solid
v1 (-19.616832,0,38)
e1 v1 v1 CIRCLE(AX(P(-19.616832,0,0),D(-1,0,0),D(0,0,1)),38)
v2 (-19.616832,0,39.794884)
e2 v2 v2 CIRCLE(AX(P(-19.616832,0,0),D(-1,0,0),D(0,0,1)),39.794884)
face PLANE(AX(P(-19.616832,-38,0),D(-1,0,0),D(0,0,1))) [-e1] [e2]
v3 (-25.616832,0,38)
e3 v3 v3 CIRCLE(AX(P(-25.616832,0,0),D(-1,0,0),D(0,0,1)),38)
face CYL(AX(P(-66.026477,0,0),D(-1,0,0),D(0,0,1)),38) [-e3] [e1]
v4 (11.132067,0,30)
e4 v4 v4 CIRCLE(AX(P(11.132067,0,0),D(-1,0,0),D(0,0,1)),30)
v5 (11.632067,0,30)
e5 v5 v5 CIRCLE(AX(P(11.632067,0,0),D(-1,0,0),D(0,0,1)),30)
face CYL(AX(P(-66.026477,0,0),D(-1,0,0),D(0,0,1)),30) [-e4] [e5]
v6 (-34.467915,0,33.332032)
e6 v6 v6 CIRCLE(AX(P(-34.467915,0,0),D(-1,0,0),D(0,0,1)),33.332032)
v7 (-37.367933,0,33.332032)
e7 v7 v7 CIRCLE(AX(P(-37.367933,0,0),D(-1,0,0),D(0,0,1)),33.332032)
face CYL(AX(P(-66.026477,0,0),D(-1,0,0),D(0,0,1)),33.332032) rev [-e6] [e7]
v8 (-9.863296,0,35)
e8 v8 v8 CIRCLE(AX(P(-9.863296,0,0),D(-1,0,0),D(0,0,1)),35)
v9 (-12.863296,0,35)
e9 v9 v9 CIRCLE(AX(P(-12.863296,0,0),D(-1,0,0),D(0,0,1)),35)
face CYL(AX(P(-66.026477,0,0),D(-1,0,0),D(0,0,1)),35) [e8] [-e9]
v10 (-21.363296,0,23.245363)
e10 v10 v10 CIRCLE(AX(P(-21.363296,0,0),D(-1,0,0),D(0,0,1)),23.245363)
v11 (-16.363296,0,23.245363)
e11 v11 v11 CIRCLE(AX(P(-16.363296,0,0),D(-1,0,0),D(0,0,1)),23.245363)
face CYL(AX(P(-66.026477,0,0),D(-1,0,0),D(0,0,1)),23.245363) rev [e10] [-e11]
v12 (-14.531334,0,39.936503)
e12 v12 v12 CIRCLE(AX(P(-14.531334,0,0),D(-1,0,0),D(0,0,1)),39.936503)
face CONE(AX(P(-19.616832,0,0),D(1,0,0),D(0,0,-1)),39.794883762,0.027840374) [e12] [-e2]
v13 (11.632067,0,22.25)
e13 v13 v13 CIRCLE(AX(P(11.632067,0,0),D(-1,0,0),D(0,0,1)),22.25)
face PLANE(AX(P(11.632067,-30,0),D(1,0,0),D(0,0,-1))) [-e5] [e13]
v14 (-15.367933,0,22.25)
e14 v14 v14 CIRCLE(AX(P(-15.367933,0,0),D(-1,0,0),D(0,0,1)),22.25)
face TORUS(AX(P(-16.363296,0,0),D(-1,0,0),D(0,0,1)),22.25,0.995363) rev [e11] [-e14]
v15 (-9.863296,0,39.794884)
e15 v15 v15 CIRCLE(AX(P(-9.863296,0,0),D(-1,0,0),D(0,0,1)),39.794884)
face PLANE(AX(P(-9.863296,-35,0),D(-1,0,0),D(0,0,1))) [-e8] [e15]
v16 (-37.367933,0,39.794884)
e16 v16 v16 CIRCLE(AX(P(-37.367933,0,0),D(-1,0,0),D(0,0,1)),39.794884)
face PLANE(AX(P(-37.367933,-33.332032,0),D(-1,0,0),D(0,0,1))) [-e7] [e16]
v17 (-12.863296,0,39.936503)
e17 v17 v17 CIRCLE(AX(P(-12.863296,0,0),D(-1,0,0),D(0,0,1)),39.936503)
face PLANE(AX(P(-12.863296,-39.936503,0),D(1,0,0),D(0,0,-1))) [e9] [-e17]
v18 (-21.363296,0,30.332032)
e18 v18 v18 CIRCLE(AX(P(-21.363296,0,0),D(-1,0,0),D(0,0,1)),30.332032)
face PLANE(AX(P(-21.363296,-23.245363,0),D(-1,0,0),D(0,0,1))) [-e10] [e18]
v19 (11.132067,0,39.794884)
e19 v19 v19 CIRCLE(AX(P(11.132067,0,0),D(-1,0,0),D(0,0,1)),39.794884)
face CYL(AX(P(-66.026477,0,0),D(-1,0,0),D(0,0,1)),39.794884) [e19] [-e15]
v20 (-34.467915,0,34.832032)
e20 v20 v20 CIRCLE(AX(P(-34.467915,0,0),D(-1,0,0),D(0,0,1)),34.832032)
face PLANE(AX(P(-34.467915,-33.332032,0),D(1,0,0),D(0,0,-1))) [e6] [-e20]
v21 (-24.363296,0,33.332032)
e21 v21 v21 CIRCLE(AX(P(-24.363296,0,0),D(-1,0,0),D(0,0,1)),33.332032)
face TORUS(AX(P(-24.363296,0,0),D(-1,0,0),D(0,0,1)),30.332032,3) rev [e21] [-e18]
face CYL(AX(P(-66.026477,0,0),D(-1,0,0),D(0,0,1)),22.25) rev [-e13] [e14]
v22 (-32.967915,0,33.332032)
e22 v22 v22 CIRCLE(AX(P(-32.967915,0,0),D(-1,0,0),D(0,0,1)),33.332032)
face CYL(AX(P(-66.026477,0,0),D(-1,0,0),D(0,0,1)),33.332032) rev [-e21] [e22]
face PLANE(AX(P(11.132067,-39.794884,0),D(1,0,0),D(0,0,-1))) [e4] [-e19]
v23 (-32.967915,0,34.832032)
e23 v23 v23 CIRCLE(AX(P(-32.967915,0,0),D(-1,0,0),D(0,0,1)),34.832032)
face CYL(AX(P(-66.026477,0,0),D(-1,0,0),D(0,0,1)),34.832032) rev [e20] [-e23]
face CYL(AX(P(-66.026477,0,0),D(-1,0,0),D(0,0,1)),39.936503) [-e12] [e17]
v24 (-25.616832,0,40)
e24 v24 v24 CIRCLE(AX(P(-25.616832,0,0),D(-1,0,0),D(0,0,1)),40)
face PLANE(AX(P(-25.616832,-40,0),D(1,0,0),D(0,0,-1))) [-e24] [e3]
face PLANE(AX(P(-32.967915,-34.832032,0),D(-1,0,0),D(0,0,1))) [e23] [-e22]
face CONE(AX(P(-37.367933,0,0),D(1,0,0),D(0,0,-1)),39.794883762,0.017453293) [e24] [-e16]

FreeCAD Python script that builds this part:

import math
import FreeCAD as App
import Part
import Sketcher

doc = App.newDocument("Part")
body = doc.addObject("PartDesign::Body", "Body")

# Sketch on XY plane
sketch1 = body.newObject("Sketcher::SketchObject", "Sketch")
sketch1.AttachmentSupport = (doc.getObject("XY_Plane"), [""])
sketch1.MapMode = "FlatFace"
sketch1.addGeometry([
    Part.LineSegment(App.Vector(11.632067, -22.25, 0), App.Vector(-15.367933, -22.25, 0)),  # 0
    Part.ArcOfCircle(Part.Circle(App.Vector(-16.363296, -22.25, 0), App.Vector(0, 0, 1), 0.995363), math.radians(-90), math.radians(0)),  # 1
    Part.LineSegment(App.Vector(-16.363296, -23.245363, 0), App.Vector(-21.363296, -23.245363, 0)),  # 2
    Part.LineSegment(App.Vector(-21.363296, -23.245363, 0), App.Vector(-21.363296, -30.332032, 0)),  # 3
    Part.ArcOfCircle(Part.Circle(App.Vector(-24.363296, -30.332032, 0), App.Vector(0, 0, 1), 3), math.radians(-90), math.radians(0)),  # 4
    Part.LineSegment(App.Vector(-24.363296, -33.332032, 0), App.Vector(-32.967915, -33.332032, 0)),  # 5
    Part.LineSegment(App.Vector(-32.967915, -33.332032, 0), App.Vector(-32.967915, -34.832032, 0)),  # 6
    Part.LineSegment(App.Vector(-32.967915, -34.832032, 0), App.Vector(-34.467915, -34.832032, 0)),  # 7
    Part.LineSegment(App.Vector(-34.467915, -34.832032, 0), App.Vector(-34.467915, -33.332032, 0)),  # 8
    Part.LineSegment(App.Vector(-34.467915, -33.332032, 0), App.Vector(-37.367933, -33.332032, 0)),  # 9
    Part.LineSegment(App.Vector(-37.367933, -33.332032, 0), App.Vector(-37.367933, -39.794884, 0)),  # 10
    Part.LineSegment(App.Vector(-37.367933, -39.794884, 0), App.Vector(-25.616832, -40, 0)),  # 11
    Part.LineSegment(App.Vector(-25.616832, -40, 0), App.Vector(-25.616832, -38, 0)),  # 12
    Part.LineSegment(App.Vector(-25.616832, -38, 0), App.Vector(-19.616832, -38, 0)),  # 13
    Part.LineSegment(App.Vector(-19.616832, -38, 0), App.Vector(-19.616832, -39.794884, 0)),  # 14
    Part.LineSegment(App.Vector(-19.616832, -39.794884, 0), App.Vector(-14.531334, -39.936503, 0)),  # 15
    Part.LineSegment(App.Vector(-14.531334, -39.936503, 0), App.Vector(-12.863296, -39.936503, 0)),  # 16
    Part.LineSegment(App.Vector(-12.863296, -39.936503, 0), App.Vector(-12.863296, -35, 0)),  # 17
    Part.LineSegment(App.Vector(-12.863296, -35, 0), App.Vector(-9.863296, -35, 0)),  # 18
    Part.LineSegment(App.Vector(-9.863296, -35, 0), App.Vector(-9.863296, -39.794884, 0)),  # 19
    Part.LineSegment(App.Vector(-9.863296, -39.794884, 0), App.Vector(11.132067, -39.794884, 0)),  # 20
    Part.LineSegment(App.Vector(11.132067, -39.794884, 0), App.Vector(11.132067, -30, 0)),  # 21
    Part.LineSegment(App.Vector(11.132067, -30, 0), App.Vector(11.632067, -30, 0)),  # 22
    Part.LineSegment(App.Vector(11.632067, -30, 0), App.Vector(11.632067, -22.25, 0)),  # 23
], False)
sketch1.addConstraint([
    Sketcher.Constraint("Coincident", 0, 2, 1, 2),
    Sketcher.Constraint("Coincident", 1, 1, 2, 1),
    Sketcher.Constraint("Coincident", 2, 2, 3, 1),
    Sketcher.Constraint("Coincident", 3, 2, 4, 2),
    Sketcher.Constraint("Coincident", 4, 1, 5, 1),
    Sketcher.Constraint("Coincident", 5, 2, 6, 1),
    Sketcher.Constraint("Coincident", 6, 2, 7, 1),
    Sketcher.Constraint("Coincident", 7, 2, 8, 1),
    Sketcher.Constraint("Coincident", 8, 2, 9, 1),
    Sketcher.Constraint("Coincident", 9, 2, 10, 1),
    Sketcher.Constraint("Coincident", 10, 2, 11, 1),
    Sketcher.Constraint("Coincident", 11, 2, 12, 1),
    Sketcher.Constraint("Coincident", 12, 2, 13, 1),
    Sketcher.Constraint("Coincident", 13, 2, 14, 1),
    Sketcher.Constraint("Coincident", 14, 2, 15, 1),
    Sketcher.Constraint("Coincident", 15, 2, 16, 1),
    Sketcher.Constraint("Coincident", 16, 2, 17, 1),
    Sketcher.Constraint("Coincident", 17, 2, 18, 1),
    Sketcher.Constraint("Coincident", 18, 2, 19, 1),
    Sketcher.Constraint("Coincident", 19, 2, 20, 1),
    Sketcher.Constraint("Coincident", 20, 2, 21, 1),
    Sketcher.Constraint("Coincident", 21, 2, 22, 1),
    Sketcher.Constraint("Coincident", 22, 2, 23, 1),
    Sketcher.Constraint("Coincident", 23, 2, 0, 1),
    Sketcher.Constraint("Horizontal", 0),
    Sketcher.Constraint("Horizontal", 2),
    Sketcher.Constraint("Vertical", 3),
    Sketcher.Constraint("Horizontal", 5),
    Sketcher.Constraint("Vertical", 6),
    Sketcher.Constraint("Horizontal", 7),
    Sketcher.Constraint("Vertical", 8),
    Sketcher.Constraint("Horizontal", 9),
    Sketcher.Constraint("Vertical", 10),
    Sketcher.Constraint("Vertical", 12),
    Sketcher.Constraint("Horizontal", 13),
    Sketcher.Constraint("Vertical", 14),
    Sketcher.Constraint("Horizontal", 16),
    Sketcher.Constraint("Vertical", 17),
    Sketcher.Constraint("Horizontal", 18),
    Sketcher.Constraint("Vertical", 19),
    Sketcher.Constraint("Horizontal", 20),
    Sketcher.Constraint("Vertical", 21),
    Sketcher.Constraint("Horizontal", 22),
    Sketcher.Constraint("Vertical", 23),
    Sketcher.Constraint("Radius", 4, 3.0),
    Sketcher.Constraint("DistanceX", 0, 2, 0, 1, 27.0),
    Sketcher.Constraint("DistanceX", 2, 2, 2, 1, 5.0),
    Sketcher.Constraint("DistanceX", 13, 1, 13, 2, 6.0),
    Sketcher.Constraint("DistanceX", 18, 1, 18, 2, 3.0),
    Sketcher.Constraint("DistanceY", 12, 1, 12, 2, 2.0),
    Sketcher.Constraint("DistanceX", 7, 2, 7, 1, 1.5),
    Sketcher.Constraint("DistanceX", 22, 1, 22, 2, 0.5),
    Sketcher.Constraint("DistanceY", 6, 2, 6, 1, 1.5),
    Sketcher.Constraint("DistanceY", 8, 1, 8, 2, 1.5),
    Sketcher.Constraint("DistanceY", 11, 2, -1, 1, 40.0),
    Sketcher.Constraint("DistanceY", 17, 2, -1, 1, 35.0),
    Sketcher.Constraint("DistanceY", 21, 2, -1, 1, 30.0),
    Sketcher.Constraint("DistanceX", 4, 3, 1, 3, 8.0),
    Sketcher.Constraint("DistanceX", 4, 1, 3, 2, 3.0),
    Sketcher.Constraint("DistanceY", 4, 1, 3, 2, 3.0),
    Sketcher.Constraint("DistanceY", 23, 1, 23, 2, 7.75),
    Sketcher.Constraint("DistanceX", 3, 2, 16, 2, 8.5),
    Sketcher.Constraint("DistanceY", 1, 3, -1, 1, 22.25),
    Sketcher.Constraint("Radius", 1, 0.995363),
    Sketcher.Constraint("DistanceX", 5, 2, 5, 1, 8.60462),
    Sketcher.Constraint("DistanceX", 16, 1, 16, 2, 1.668038),
    Sketcher.Constraint("DistanceY", 3, 2, 3, 1, 7.08667),
    Sketcher.Constraint("DistanceY", 10, 2, 10, 1, 6.462851),
    Sketcher.Constraint("Distance", 11, 11.752891),
    Sketcher.Constraint("Distance", 15, 5.087469),
    Sketcher.Constraint("DistanceX", 9, 2, 9, 1, 2.900017),
    Sketcher.Constraint("DistanceY", 14, 2, 14, 1, 1.794884),
    Sketcher.Constraint("DistanceY", 19, 2, 19, 1, 4.794884),
    Sketcher.Constraint("DistanceX", 11, 2, -1, 1, 25.616832),
])
revolution = body.newObject("PartDesign::Revolution", "Revolution")
revolution.Profile = sketch1
revolution.ReferenceAxis = (sketch1, ["H_Axis"])
revolution.Angle = 360

doc.recompute()
